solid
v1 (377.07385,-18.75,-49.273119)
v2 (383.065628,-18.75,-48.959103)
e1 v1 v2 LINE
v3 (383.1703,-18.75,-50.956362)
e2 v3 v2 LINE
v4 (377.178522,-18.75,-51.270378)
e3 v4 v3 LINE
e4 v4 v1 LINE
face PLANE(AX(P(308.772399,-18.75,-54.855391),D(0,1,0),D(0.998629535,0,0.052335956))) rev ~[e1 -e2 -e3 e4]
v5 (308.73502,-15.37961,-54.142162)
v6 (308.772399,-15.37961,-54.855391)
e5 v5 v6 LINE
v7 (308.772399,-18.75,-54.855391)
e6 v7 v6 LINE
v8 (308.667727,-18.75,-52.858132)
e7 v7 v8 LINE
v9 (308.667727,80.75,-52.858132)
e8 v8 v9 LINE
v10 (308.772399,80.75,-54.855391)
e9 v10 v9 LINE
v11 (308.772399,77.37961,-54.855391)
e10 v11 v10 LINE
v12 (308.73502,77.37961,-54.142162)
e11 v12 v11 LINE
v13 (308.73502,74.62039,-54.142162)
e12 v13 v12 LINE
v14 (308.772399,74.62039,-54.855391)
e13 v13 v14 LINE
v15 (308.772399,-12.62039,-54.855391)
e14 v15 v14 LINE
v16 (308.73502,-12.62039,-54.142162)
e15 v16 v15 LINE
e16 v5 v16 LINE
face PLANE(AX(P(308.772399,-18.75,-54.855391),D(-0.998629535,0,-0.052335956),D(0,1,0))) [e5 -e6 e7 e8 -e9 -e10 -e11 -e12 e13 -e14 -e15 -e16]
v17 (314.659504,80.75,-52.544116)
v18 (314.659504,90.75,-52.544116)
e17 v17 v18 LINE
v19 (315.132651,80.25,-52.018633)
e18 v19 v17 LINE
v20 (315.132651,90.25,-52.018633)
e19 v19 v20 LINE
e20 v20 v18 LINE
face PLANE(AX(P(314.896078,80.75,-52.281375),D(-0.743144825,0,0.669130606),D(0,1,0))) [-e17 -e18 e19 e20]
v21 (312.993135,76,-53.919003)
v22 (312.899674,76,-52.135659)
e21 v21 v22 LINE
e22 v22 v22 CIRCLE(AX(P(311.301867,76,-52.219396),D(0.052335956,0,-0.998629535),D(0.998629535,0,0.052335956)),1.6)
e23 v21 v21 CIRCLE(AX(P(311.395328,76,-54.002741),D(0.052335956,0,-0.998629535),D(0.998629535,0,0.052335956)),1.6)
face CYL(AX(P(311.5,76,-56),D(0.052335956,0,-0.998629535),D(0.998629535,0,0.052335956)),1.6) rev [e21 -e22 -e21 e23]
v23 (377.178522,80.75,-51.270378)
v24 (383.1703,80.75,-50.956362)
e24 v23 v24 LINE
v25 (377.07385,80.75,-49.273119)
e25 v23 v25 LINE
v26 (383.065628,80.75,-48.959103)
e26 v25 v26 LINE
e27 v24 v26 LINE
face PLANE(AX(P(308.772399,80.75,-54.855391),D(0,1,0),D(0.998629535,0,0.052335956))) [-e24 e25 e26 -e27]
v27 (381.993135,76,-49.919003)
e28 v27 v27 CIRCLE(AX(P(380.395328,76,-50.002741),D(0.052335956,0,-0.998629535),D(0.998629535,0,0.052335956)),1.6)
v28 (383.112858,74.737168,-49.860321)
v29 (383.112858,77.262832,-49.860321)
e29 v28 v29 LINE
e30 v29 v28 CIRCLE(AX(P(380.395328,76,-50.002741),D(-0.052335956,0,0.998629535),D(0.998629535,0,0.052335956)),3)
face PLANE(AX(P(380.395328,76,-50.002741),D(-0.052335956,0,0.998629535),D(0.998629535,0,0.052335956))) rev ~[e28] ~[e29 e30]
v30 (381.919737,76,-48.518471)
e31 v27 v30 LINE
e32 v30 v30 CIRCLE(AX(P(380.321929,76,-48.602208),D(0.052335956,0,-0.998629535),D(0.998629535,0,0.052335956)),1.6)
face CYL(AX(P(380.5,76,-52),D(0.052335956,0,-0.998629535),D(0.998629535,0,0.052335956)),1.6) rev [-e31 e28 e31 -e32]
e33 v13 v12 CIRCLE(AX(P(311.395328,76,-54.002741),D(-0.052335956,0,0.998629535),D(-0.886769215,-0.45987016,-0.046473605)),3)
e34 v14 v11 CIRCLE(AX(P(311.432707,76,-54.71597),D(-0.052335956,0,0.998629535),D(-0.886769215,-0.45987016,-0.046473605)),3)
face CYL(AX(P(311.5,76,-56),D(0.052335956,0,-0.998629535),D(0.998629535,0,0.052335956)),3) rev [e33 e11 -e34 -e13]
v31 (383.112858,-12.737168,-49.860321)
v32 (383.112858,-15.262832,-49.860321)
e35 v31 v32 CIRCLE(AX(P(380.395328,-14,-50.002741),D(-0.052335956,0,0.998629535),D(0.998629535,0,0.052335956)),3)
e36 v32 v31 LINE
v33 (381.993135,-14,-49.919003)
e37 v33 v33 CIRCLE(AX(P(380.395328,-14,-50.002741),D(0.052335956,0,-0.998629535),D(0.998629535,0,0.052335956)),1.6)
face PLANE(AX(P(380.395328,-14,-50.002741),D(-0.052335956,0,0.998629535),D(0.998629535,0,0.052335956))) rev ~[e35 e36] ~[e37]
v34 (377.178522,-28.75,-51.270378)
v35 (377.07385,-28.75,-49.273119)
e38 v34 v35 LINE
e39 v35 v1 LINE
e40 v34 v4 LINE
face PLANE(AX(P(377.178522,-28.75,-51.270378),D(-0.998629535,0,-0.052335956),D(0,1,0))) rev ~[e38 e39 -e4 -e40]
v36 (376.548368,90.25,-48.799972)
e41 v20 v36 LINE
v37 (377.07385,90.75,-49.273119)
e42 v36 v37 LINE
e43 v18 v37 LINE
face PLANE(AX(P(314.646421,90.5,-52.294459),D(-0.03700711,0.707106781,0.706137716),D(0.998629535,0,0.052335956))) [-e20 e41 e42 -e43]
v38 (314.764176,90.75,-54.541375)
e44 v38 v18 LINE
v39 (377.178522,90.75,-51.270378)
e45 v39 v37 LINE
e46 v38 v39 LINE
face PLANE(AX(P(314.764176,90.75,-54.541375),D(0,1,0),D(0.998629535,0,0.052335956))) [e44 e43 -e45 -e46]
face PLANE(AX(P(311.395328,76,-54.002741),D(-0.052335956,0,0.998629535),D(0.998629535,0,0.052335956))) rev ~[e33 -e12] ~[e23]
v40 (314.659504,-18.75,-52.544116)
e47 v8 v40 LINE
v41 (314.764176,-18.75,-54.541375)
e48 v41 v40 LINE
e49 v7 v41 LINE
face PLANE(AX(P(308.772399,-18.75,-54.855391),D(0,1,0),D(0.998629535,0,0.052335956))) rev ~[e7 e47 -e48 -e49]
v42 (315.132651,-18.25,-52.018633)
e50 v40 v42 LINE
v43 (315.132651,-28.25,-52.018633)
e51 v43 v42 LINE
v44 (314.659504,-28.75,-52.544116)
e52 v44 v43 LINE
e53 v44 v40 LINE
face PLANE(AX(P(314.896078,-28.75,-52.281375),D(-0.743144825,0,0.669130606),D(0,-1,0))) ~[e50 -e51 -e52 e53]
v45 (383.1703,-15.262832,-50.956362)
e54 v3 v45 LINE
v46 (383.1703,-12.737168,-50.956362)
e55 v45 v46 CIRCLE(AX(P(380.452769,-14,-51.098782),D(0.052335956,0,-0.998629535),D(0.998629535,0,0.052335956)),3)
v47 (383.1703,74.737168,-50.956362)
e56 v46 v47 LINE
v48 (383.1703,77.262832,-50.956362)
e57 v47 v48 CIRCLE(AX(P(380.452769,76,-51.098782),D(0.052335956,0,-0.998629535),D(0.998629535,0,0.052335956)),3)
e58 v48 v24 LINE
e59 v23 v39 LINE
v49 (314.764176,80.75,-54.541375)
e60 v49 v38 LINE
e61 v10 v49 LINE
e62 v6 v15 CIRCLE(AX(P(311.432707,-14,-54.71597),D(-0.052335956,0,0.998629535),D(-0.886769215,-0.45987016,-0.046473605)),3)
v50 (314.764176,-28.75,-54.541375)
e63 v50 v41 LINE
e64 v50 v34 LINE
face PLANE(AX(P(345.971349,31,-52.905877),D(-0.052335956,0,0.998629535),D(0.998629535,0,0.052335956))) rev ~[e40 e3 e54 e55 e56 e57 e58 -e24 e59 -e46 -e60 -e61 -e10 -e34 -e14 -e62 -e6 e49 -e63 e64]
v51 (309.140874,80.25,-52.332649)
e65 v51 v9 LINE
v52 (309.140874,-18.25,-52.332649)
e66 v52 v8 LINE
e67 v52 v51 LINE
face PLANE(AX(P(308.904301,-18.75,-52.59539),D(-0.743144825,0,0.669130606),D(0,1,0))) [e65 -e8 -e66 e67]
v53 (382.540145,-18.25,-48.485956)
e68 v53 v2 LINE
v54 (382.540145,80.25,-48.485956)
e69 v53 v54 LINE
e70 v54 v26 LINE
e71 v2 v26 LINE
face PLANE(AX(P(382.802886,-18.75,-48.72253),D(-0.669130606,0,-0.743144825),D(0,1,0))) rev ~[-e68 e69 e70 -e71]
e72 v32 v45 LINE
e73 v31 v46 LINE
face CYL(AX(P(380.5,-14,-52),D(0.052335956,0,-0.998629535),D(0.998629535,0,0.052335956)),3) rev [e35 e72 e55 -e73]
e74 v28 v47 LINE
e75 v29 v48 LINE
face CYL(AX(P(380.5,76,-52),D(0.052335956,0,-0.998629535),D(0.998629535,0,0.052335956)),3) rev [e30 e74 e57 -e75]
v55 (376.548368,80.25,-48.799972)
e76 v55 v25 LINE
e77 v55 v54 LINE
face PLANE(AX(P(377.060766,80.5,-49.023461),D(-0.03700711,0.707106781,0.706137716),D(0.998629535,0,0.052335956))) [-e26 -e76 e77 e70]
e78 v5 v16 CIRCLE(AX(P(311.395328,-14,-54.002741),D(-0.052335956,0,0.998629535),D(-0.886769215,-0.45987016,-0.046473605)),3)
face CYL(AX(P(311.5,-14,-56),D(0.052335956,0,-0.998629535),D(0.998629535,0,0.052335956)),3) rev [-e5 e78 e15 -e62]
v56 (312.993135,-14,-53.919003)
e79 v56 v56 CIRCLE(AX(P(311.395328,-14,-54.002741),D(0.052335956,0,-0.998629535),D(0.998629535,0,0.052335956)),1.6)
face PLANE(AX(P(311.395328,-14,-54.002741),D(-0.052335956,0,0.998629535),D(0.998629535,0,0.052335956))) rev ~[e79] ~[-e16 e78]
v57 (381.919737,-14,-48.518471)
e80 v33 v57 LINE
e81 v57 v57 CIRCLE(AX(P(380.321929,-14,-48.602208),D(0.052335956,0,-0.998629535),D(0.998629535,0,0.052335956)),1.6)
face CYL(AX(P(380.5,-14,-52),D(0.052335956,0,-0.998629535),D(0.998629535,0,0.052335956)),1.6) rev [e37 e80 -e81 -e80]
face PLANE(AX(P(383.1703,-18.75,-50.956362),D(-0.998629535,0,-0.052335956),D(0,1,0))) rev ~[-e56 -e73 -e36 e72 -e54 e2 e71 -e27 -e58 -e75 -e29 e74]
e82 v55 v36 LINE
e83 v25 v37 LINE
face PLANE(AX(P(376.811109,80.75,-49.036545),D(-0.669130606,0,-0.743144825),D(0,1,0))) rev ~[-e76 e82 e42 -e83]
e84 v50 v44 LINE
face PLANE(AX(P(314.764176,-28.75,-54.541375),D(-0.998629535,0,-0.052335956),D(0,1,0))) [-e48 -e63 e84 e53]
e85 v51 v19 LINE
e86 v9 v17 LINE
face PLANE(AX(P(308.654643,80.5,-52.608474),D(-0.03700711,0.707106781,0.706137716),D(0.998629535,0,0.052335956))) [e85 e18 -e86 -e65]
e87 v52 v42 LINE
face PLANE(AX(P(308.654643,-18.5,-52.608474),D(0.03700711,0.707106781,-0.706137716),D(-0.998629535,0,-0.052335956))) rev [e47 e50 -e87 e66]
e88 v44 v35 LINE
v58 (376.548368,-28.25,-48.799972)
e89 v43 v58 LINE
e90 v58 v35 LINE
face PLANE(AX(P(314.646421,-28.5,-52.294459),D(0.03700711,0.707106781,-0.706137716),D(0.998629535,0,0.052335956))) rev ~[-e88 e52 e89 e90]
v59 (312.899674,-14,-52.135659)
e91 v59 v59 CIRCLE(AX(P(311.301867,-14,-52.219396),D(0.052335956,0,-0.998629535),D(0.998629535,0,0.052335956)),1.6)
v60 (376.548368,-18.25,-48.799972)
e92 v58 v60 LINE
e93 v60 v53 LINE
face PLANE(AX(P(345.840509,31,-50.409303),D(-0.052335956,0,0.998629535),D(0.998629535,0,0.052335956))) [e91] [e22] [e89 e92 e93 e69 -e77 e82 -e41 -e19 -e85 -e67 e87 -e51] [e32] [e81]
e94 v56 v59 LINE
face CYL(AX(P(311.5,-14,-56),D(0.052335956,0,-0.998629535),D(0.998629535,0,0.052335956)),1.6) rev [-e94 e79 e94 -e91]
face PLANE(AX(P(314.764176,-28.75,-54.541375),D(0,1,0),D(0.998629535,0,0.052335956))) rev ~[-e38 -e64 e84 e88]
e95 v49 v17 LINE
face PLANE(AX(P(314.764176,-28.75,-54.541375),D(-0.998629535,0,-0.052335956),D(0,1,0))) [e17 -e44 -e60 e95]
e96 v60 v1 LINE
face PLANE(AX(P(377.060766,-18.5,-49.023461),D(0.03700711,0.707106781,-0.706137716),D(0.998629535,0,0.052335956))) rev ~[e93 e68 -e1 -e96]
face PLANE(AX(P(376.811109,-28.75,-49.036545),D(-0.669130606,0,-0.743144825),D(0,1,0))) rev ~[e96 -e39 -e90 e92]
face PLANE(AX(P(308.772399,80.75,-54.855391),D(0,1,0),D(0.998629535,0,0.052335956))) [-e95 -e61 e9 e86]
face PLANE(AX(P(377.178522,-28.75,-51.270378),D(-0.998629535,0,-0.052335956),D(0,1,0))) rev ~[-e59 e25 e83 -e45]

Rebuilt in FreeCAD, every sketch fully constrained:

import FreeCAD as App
import Part
import Sketcher
Q = App.Units.Quantity


def edges_at(feature, points):
    """Names of the edges that pass closest to the given points."""
    edges = feature.Shape.Edges
    near = lambda p: min(range(len(edges)), key=lambda i: edges[i].distToShape(Part.Vertex(*p))[0])
    return sorted({f"Edge{near(p) + 1}" for p in points})

doc = App.newDocument("Part")
body = doc.addObject("PartDesign::Body", "Body")

# Sketch on XY plane
sketch1 = body.newObject("Sketcher::SketchObject", "Sketch")
sketch1.AttachmentSupport = (doc.getObject("XY_Plane"), [""])
sketch1.MapMode = "FlatFace"
sketch1.addGeometry(Part.Circle(App.Vector(0, 0, 0), App.Vector(0, 0, 1), 1.6), False)
sketch1.addConstraint(Sketcher.Constraint("Coincident", 0, 3, -1, 1))
sketch1.addConstraint(Sketcher.Constraint("Diameter", 0, Q("3.2 mm")))
pad1 = body.newObject("PartDesign::Pad", "Pad")
pad1.Profile = sketch1
pad1.Length = 15
body2 = doc.addObject("PartDesign::Body", "Body001")
doc.recompute()

body.Placement = App.Placement(App.Vector(380.5, -14, -52), App.Rotation(App.Vector(0, -1, 0), 3))
boolean = body2.newObject("PartDesign::Boolean", "Boolean")
boolean.Type = "Fuse"
boolean.addObjects([body])
body3 = doc.addObject("PartDesign::Body", "Body002")

# Sketch on XY plane
sketch2 = body3.newObject("Sketcher::SketchObject", "Sketch001")
sketch2.AttachmentSupport = (doc.getObject("XY_Plane002"), [""])
sketch2.MapMode = "FlatFace"
sketch2.addGeometry(Part.Circle(App.Vector(0, 0, 0), App.Vector(0, 0, 1), 1.6), False)
sketch2.addConstraint(Sketcher.Constraint("Coincident", 0, 3, -1, 1))
sketch2.addConstraint(Sketcher.Constraint("Diameter", 0, Q("3.2 mm")))
pad2 = body3.newObject("PartDesign::Pad", "Pad001")
pad2.Profile = sketch2
pad2.Length = 15
body4 = doc.addObject("PartDesign::Body", "Body003")
body4.AllowCompound = True
doc.recompute()

body3.Placement = App.Placement(App.Vector(311.5, -14, -56), App.Rotation(App.Vector(0, -1, 0), 3))
boolean2 = body4.newObject("PartDesign::Boolean", "Boolean001")
boolean2.Type = "Fuse"
boolean2.addObjects([body3])
doc.recompute()

boolean3 = body4.newObject("PartDesign::Boolean", "Boolean002")
boolean3.Type = "Fuse"
boolean3.addObjects([body2])
body5 = doc.addObject("PartDesign::Body", "Body004")

# Sketch on XY plane
sketch3 = body5.newObject("Sketcher::SketchObject", "Sketch002")
sketch3.AttachmentSupport = (doc.getObject("XY_Plane004"), [""])
sketch3.MapMode = "FlatFace"
sketch3.addGeometry(Part.Circle(App.Vector(0, 0, 0), App.Vector(0, 0, 1), 1.6), False)
sketch3.addConstraint(Sketcher.Constraint("Coincident", 0, 3, -1, 1))
sketch3.addConstraint(Sketcher.Constraint("Diameter", 0, Q("3.2 mm")))
pad3 = body5.newObject("PartDesign::Pad", "Pad002")
pad3.Profile = sketch3
pad3.Length = 15
body6 = doc.addObject("PartDesign::Body", "Body005")
doc.recompute()

body5.Placement = App.Placement(App.Vector(380.5, -14, -52), App.Rotation(App.Vector(0, -1, 0), 3))
boolean4 = body6.newObject("PartDesign::Boolean", "Boolean003")
boolean4.Type = "Fuse"
boolean4.addObjects([body5])
body7 = doc.addObject("PartDesign::Body", "Body006")

# Sketch on XY plane
sketch4 = body7.newObject("Sketcher::SketchObject", "Sketch003")
sketch4.AttachmentSupport = (doc.getObject("XY_Plane006"), [""])
sketch4.MapMode = "FlatFace"
sketch4.addGeometry(Part.Circle(App.Vector(0, 0, 0), App.Vector(0, 0, 1), 1.6), False)
sketch4.addConstraint(Sketcher.Constraint("Coincident", 0, 3, -1, 1))
sketch4.addConstraint(Sketcher.Constraint("Diameter", 0, Q("3.2 mm")))
pad4 = body7.newObject("PartDesign::Pad", "Pad003")
pad4.Profile = sketch4
pad4.Length = 15
body8 = doc.addObject("PartDesign::Body", "Body007")
body8.AllowCompound = True
doc.recompute()

body7.Placement = App.Placement(App.Vector(311.5, -14, -56), App.Rotation(App.Vector(0, -1, 0), 3))
boolean5 = body8.newObject("PartDesign::Boolean", "Boolean004")
boolean5.Type = "Fuse"
boolean5.addObjects([body7])
doc.recompute()

boolean6 = body8.newObject("PartDesign::Boolean", "Boolean005")
boolean6.Type = "Fuse"
boolean6.addObjects([body6])
body9 = doc.addObject("PartDesign::Body", "Body008")
body9.AllowCompound = True
doc.recompute()

body8.Placement = App.Placement(App.Vector(0, 90, 0), App.Rotation(App.Vector(0, 0, 1), 0))
boolean7 = body9.newObject("PartDesign::Boolean", "Boolean006")
boolean7.Type = "Fuse"
boolean7.addObjects([body8])
doc.recompute()

boolean8 = body9.newObject("PartDesign::Boolean", "Boolean007")
boolean8.Type = "Fuse"
boolean8.addObjects([body4])
body10 = doc.addObject("PartDesign::Body", "Body009")

# Sketch on XY plane
sketch5 = body10.newObject("Sketcher::SketchObject", "Sketch004")
sketch5.AttachmentSupport = (doc.getObject("XY_Plane009"), [""])
sketch5.MapMode = "FlatFace"
sketch5.addGeometry(Part.Circle(App.Vector(0, 0, 0), App.Vector(0, 0, 1), 3), False)
sketch5.addConstraint(Sketcher.Constraint("Coincident", 0, 3, -1, 1))
sketch5.addConstraint(Sketcher.Constraint("Diameter", 0, Q("6 mm")))
pad5 = body10.newObject("PartDesign::Pad", "Pad004")
pad5.Profile = sketch5
pad5.Length = 2
body11 = doc.addObject("PartDesign::Body", "Body010")
doc.recompute()

body10.Placement = App.Placement(App.Vector(380.5, -14, -52), App.Rotation(App.Vector(0, -1, 0), 3))
boolean9 = body11.newObject("PartDesign::Boolean", "Boolean008")
boolean9.Type = "Fuse"
boolean9.addObjects([body10])
body12 = doc.addObject("PartDesign::Body", "Body011")

# Sketch on XY plane
sketch6 = body12.newObject("Sketcher::SketchObject", "Sketch005")
sketch6.AttachmentSupport = (doc.getObject("XY_Plane011"), [""])
sketch6.MapMode = "FlatFace"
sketch6.addGeometry(Part.Circle(App.Vector(0, 0, 0), App.Vector(0, 0, 1), 3), False)
sketch6.addConstraint(Sketcher.Constraint("Coincident", 0, 3, -1, 1))
sketch6.addConstraint(Sketcher.Constraint("Diameter", 0, Q("6 mm")))
pad6 = body12.newObject("PartDesign::Pad", "Pad005")
pad6.Profile = sketch6
pad6.Length = 2
body13 = doc.addObject("PartDesign::Body", "Body012")
body13.AllowCompound = True
doc.recompute()

body12.Placement = App.Placement(App.Vector(311.5, -14, -56), App.Rotation(App.Vector(0, -1, 0), 3))
boolean10 = body13.newObject("PartDesign::Boolean", "Boolean009")
boolean10.Type = "Fuse"
boolean10.addObjects([body12])
doc.recompute()

boolean11 = body13.newObject("PartDesign::Boolean", "Boolean010")
boolean11.Type = "Fuse"
boolean11.addObjects([body11])
body14 = doc.addObject("PartDesign::Body", "Body013")

# Sketch on XY plane
sketch7 = body14.newObject("Sketcher::SketchObject", "Sketch006")
sketch7.AttachmentSupport = (doc.getObject("XY_Plane013"), [""])
sketch7.MapMode = "FlatFace"
sketch7.addGeometry(Part.Circle(App.Vector(0, 0, 0), App.Vector(0, 0, 1), 3), False)
sketch7.addConstraint(Sketcher.Constraint("Coincident", 0, 3, -1, 1))
sketch7.addConstraint(Sketcher.Constraint("Diameter", 0, Q("6 mm")))
pad7 = body14.newObject("PartDesign::Pad", "Pad006")
pad7.Profile = sketch7
pad7.Length = 2
body15 = doc.addObject("PartDesign::Body", "Body014")
doc.recompute()

body14.Placement = App.Placement(App.Vector(380.5, -14, -52), App.Rotation(App.Vector(0, -1, 0), 3))
boolean12 = body15.newObject("PartDesign::Boolean", "Boolean011")
boolean12.Type = "Fuse"
boolean12.addObjects([body14])
body16 = doc.addObject("PartDesign::Body", "Body015")

# Sketch on XY plane
sketch8 = body16.newObject("Sketcher::SketchObject", "Sketch007")
sketch8.AttachmentSupport = (doc.getObject("XY_Plane015"), [""])
sketch8.MapMode = "FlatFace"
sketch8.addGeometry(Part.Circle(App.Vector(0, 0, 0), App.Vector(0, 0, 1), 3), False)
sketch8.addConstraint(Sketcher.Constraint("Coincident", 0, 3, -1, 1))
sketch8.addConstraint(Sketcher.Constraint("Diameter", 0, Q("6 mm")))
pad8 = body16.newObject("PartDesign::Pad", "Pad007")
pad8.Profile = sketch8
pad8.Length = 2
body17 = doc.addObject("PartDesign::Body", "Body016")
body17.AllowCompound = True
doc.recompute()

body16.Placement = App.Placement(App.Vector(311.5, -14, -56), App.Rotation(App.Vector(0, -1, 0), 3))
boolean13 = body17.newObject("PartDesign::Boolean", "Boolean012")
boolean13.Type = "Fuse"
boolean13.addObjects([body16])
doc.recompute()

boolean14 = body17.newObject("PartDesign::Boolean", "Boolean013")
boolean14.Type = "Fuse"
boolean14.addObjects([body15])
body18 = doc.addObject("PartDesign::Body", "Body017")
body18.AllowCompound = True
doc.recompute()

body17.Placement = App.Placement(App.Vector(0, 90, 0), App.Rotation(App.Vector(0, 0, 1), 0))
boolean15 = body18.newObject("PartDesign::Boolean", "Boolean014")
boolean15.Type = "Fuse"
boolean15.addObjects([body17])
doc.recompute()

boolean16 = body18.newObject("PartDesign::Boolean", "Boolean015")
boolean16.Type = "Fuse"
boolean16.addObjects([body13])
doc.recompute()

boolean17 = body18.newObject("PartDesign::Boolean", "Boolean016")
boolean17.Type = "Fuse"
boolean17.addObjects([body9])
body19 = doc.addObject("PartDesign::Body", "Body018")

# Sketch on XY plane
sketch9 = body19.newObject("Sketcher::SketchObject", "Sketch008")
sketch9.AttachmentSupport = (doc.getObject("XY_Plane018"), [""])
sketch9.MapMode = "FlatFace"
sketch9.AttachmentOffset = App.Placement(App.Vector(0, 0, -0.5), App.Rotation())
sketch9.addGeometry(Part.LineSegment(App.Vector(9, 96, 0), App.Vector(9, -24, 0)), False)
sketch9.addGeometry(Part.LineSegment(App.Vector(9, -24, 0), App.Vector(71, -24, 0)), False)
sketch9.addGeometry(Part.LineSegment(App.Vector(71, -24, 0), App.Vector(71, 96, 0)), False)
sketch9.addGeometry(Part.LineSegment(App.Vector(71, 96, 0), App.Vector(9, 96, 0)), False)
sketch9.addConstraint(Sketcher.Constraint("Coincident", 0, 2, 1, 1))
sketch9.addConstraint(Sketcher.Constraint("Coincident", 1, 2, 2, 1))
sketch9.addConstraint(Sketcher.Constraint("Coincident", 2, 2, 3, 1))
sketch9.addConstraint(Sketcher.Constraint("Coincident", 3, 2, 0, 1))
sketch9.addConstraint(Sketcher.Constraint("Vertical", 0))
sketch9.addConstraint(Sketcher.Constraint("Horizontal", 1))
sketch9.addConstraint(Sketcher.Constraint("Vertical", 2))
sketch9.addConstraint(Sketcher.Constraint("Horizontal", 3))
sketch9.addConstraint(Sketcher.Constraint("DistanceX", 1, 1, 1, 2, Q("62.5 mm")))
sketch9.addConstraint(Sketcher.Constraint("DistanceY", 0, 2, 0, 1, Q("119.5 mm")))
sketch9.addConstraint(Sketcher.Constraint("DistanceX", -1, 1, 0, 2, Q("8.75 mm")))
sketch9.addConstraint(Sketcher.Constraint("DistanceY", 0, 2, -1, 1, Q("23.75 mm")))
pad9 = body19.newObject("PartDesign::Pad", "Pad008")
pad9.Profile = sketch9
pad9.Length = 2.5
body20 = doc.addObject("PartDesign::Body", "Body019")

# Sketch on XY plane
sketch10 = body20.newObject("Sketcher::SketchObject", "Sketch009")
sketch10.AttachmentSupport = (doc.getObject("XY_Plane019"), [""])
sketch10.MapMode = "FlatFace"
sketch10.AttachmentOffset = App.Placement(App.Vector(0, 0, -0.5), App.Rotation())
sketch10.addGeometry(Part.LineSegment(App.Vector(3, 86, 0), App.Vector(3, -14, 0)), False)
sketch10.addGeometry(Part.LineSegment(App.Vector(3, -14, 0), App.Vector(77, -14, 0)), False)
sketch10.addGeometry(Part.LineSegment(App.Vector(77, -14, 0), App.Vector(77, 86, 0)), False)
sketch10.addGeometry(Part.LineSegment(App.Vector(77, 86, 0), App.Vector(3, 86, 0)), False)
sketch10.addConstraint(Sketcher.Constraint("Coincident", 0, 2, 1, 1))
sketch10.addConstraint(Sketcher.Constraint("Coincident", 1, 2, 2, 1))
sketch10.addConstraint(Sketcher.Constraint("Coincident", 2, 2, 3, 1))
sketch10.addConstraint(Sketcher.Constraint("Coincident", 3, 2, 0, 1))
sketch10.addConstraint(Sketcher.Constraint("Vertical", 0))
sketch10.addConstraint(Sketcher.Constraint("Horizontal", 1))
sketch10.addConstraint(Sketcher.Constraint("Vertical", 2))
sketch10.addConstraint(Sketcher.Constraint("Horizontal", 3))
sketch10.addConstraint(Sketcher.Constraint("DistanceX", 1, 1, 1, 2, Q("74.5 mm")))
sketch10.addConstraint(Sketcher.Constraint("DistanceY", 0, 2, 0, 1, Q("99.5 mm")))
sketch10.addConstraint(Sketcher.Constraint("DistanceX", -1, 1, 0, 2, Q("2.75 mm")))
sketch10.addConstraint(Sketcher.Constraint("DistanceY", 0, 2, -1, 1, Q("13.75 mm")))
pad10 = body20.newObject("PartDesign::Pad", "Pad009")
pad10.Profile = sketch10
pad10.Length = 2.5
doc.recompute()

boolean18 = body20.newObject("PartDesign::Boolean", "Boolean017")
boolean18.Type = "Fuse"
boolean18.addObjects([body19])
doc.recompute()

chamfer = body20.newObject("PartDesign::Chamfer", "Chamfer")
chamfer.Base = (boolean18, edges_at(boolean18, [
    (2.75, 36, 2),
    (5.75, -13.75, 2),
    (5.75, 85.75, 2),
    (8.75, -18.75, 2),
    (8.75, 90.75, 2),
    (40, -23.75, 2),
    (40, 95.75, 2),
    (71.25, -18.75, 2),
    (71.25, 90.75, 2),
    (74.25, 85.75, 2),
    (77.25, 36, 2),
    (74.25, -13.75, 2),
]))
chamfer.Size = 0.5
body21 = doc.addObject("PartDesign::Body", "Body020")
doc.recompute()

body20.Placement = App.Placement(App.Vector(306, -5, -54.5), App.Rotation(App.Vector(0, -1, 0), 3))
boolean19 = body21.newObject("PartDesign::Boolean", "Boolean018")
boolean19.Type = "Fuse"
boolean19.addObjects([body20])
doc.recompute()

boolean20 = body21.newObject("PartDesign::Boolean", "Boolean019")
boolean20.Type = "Cut"
boolean20.addObjects([body18])

doc.recompute()
